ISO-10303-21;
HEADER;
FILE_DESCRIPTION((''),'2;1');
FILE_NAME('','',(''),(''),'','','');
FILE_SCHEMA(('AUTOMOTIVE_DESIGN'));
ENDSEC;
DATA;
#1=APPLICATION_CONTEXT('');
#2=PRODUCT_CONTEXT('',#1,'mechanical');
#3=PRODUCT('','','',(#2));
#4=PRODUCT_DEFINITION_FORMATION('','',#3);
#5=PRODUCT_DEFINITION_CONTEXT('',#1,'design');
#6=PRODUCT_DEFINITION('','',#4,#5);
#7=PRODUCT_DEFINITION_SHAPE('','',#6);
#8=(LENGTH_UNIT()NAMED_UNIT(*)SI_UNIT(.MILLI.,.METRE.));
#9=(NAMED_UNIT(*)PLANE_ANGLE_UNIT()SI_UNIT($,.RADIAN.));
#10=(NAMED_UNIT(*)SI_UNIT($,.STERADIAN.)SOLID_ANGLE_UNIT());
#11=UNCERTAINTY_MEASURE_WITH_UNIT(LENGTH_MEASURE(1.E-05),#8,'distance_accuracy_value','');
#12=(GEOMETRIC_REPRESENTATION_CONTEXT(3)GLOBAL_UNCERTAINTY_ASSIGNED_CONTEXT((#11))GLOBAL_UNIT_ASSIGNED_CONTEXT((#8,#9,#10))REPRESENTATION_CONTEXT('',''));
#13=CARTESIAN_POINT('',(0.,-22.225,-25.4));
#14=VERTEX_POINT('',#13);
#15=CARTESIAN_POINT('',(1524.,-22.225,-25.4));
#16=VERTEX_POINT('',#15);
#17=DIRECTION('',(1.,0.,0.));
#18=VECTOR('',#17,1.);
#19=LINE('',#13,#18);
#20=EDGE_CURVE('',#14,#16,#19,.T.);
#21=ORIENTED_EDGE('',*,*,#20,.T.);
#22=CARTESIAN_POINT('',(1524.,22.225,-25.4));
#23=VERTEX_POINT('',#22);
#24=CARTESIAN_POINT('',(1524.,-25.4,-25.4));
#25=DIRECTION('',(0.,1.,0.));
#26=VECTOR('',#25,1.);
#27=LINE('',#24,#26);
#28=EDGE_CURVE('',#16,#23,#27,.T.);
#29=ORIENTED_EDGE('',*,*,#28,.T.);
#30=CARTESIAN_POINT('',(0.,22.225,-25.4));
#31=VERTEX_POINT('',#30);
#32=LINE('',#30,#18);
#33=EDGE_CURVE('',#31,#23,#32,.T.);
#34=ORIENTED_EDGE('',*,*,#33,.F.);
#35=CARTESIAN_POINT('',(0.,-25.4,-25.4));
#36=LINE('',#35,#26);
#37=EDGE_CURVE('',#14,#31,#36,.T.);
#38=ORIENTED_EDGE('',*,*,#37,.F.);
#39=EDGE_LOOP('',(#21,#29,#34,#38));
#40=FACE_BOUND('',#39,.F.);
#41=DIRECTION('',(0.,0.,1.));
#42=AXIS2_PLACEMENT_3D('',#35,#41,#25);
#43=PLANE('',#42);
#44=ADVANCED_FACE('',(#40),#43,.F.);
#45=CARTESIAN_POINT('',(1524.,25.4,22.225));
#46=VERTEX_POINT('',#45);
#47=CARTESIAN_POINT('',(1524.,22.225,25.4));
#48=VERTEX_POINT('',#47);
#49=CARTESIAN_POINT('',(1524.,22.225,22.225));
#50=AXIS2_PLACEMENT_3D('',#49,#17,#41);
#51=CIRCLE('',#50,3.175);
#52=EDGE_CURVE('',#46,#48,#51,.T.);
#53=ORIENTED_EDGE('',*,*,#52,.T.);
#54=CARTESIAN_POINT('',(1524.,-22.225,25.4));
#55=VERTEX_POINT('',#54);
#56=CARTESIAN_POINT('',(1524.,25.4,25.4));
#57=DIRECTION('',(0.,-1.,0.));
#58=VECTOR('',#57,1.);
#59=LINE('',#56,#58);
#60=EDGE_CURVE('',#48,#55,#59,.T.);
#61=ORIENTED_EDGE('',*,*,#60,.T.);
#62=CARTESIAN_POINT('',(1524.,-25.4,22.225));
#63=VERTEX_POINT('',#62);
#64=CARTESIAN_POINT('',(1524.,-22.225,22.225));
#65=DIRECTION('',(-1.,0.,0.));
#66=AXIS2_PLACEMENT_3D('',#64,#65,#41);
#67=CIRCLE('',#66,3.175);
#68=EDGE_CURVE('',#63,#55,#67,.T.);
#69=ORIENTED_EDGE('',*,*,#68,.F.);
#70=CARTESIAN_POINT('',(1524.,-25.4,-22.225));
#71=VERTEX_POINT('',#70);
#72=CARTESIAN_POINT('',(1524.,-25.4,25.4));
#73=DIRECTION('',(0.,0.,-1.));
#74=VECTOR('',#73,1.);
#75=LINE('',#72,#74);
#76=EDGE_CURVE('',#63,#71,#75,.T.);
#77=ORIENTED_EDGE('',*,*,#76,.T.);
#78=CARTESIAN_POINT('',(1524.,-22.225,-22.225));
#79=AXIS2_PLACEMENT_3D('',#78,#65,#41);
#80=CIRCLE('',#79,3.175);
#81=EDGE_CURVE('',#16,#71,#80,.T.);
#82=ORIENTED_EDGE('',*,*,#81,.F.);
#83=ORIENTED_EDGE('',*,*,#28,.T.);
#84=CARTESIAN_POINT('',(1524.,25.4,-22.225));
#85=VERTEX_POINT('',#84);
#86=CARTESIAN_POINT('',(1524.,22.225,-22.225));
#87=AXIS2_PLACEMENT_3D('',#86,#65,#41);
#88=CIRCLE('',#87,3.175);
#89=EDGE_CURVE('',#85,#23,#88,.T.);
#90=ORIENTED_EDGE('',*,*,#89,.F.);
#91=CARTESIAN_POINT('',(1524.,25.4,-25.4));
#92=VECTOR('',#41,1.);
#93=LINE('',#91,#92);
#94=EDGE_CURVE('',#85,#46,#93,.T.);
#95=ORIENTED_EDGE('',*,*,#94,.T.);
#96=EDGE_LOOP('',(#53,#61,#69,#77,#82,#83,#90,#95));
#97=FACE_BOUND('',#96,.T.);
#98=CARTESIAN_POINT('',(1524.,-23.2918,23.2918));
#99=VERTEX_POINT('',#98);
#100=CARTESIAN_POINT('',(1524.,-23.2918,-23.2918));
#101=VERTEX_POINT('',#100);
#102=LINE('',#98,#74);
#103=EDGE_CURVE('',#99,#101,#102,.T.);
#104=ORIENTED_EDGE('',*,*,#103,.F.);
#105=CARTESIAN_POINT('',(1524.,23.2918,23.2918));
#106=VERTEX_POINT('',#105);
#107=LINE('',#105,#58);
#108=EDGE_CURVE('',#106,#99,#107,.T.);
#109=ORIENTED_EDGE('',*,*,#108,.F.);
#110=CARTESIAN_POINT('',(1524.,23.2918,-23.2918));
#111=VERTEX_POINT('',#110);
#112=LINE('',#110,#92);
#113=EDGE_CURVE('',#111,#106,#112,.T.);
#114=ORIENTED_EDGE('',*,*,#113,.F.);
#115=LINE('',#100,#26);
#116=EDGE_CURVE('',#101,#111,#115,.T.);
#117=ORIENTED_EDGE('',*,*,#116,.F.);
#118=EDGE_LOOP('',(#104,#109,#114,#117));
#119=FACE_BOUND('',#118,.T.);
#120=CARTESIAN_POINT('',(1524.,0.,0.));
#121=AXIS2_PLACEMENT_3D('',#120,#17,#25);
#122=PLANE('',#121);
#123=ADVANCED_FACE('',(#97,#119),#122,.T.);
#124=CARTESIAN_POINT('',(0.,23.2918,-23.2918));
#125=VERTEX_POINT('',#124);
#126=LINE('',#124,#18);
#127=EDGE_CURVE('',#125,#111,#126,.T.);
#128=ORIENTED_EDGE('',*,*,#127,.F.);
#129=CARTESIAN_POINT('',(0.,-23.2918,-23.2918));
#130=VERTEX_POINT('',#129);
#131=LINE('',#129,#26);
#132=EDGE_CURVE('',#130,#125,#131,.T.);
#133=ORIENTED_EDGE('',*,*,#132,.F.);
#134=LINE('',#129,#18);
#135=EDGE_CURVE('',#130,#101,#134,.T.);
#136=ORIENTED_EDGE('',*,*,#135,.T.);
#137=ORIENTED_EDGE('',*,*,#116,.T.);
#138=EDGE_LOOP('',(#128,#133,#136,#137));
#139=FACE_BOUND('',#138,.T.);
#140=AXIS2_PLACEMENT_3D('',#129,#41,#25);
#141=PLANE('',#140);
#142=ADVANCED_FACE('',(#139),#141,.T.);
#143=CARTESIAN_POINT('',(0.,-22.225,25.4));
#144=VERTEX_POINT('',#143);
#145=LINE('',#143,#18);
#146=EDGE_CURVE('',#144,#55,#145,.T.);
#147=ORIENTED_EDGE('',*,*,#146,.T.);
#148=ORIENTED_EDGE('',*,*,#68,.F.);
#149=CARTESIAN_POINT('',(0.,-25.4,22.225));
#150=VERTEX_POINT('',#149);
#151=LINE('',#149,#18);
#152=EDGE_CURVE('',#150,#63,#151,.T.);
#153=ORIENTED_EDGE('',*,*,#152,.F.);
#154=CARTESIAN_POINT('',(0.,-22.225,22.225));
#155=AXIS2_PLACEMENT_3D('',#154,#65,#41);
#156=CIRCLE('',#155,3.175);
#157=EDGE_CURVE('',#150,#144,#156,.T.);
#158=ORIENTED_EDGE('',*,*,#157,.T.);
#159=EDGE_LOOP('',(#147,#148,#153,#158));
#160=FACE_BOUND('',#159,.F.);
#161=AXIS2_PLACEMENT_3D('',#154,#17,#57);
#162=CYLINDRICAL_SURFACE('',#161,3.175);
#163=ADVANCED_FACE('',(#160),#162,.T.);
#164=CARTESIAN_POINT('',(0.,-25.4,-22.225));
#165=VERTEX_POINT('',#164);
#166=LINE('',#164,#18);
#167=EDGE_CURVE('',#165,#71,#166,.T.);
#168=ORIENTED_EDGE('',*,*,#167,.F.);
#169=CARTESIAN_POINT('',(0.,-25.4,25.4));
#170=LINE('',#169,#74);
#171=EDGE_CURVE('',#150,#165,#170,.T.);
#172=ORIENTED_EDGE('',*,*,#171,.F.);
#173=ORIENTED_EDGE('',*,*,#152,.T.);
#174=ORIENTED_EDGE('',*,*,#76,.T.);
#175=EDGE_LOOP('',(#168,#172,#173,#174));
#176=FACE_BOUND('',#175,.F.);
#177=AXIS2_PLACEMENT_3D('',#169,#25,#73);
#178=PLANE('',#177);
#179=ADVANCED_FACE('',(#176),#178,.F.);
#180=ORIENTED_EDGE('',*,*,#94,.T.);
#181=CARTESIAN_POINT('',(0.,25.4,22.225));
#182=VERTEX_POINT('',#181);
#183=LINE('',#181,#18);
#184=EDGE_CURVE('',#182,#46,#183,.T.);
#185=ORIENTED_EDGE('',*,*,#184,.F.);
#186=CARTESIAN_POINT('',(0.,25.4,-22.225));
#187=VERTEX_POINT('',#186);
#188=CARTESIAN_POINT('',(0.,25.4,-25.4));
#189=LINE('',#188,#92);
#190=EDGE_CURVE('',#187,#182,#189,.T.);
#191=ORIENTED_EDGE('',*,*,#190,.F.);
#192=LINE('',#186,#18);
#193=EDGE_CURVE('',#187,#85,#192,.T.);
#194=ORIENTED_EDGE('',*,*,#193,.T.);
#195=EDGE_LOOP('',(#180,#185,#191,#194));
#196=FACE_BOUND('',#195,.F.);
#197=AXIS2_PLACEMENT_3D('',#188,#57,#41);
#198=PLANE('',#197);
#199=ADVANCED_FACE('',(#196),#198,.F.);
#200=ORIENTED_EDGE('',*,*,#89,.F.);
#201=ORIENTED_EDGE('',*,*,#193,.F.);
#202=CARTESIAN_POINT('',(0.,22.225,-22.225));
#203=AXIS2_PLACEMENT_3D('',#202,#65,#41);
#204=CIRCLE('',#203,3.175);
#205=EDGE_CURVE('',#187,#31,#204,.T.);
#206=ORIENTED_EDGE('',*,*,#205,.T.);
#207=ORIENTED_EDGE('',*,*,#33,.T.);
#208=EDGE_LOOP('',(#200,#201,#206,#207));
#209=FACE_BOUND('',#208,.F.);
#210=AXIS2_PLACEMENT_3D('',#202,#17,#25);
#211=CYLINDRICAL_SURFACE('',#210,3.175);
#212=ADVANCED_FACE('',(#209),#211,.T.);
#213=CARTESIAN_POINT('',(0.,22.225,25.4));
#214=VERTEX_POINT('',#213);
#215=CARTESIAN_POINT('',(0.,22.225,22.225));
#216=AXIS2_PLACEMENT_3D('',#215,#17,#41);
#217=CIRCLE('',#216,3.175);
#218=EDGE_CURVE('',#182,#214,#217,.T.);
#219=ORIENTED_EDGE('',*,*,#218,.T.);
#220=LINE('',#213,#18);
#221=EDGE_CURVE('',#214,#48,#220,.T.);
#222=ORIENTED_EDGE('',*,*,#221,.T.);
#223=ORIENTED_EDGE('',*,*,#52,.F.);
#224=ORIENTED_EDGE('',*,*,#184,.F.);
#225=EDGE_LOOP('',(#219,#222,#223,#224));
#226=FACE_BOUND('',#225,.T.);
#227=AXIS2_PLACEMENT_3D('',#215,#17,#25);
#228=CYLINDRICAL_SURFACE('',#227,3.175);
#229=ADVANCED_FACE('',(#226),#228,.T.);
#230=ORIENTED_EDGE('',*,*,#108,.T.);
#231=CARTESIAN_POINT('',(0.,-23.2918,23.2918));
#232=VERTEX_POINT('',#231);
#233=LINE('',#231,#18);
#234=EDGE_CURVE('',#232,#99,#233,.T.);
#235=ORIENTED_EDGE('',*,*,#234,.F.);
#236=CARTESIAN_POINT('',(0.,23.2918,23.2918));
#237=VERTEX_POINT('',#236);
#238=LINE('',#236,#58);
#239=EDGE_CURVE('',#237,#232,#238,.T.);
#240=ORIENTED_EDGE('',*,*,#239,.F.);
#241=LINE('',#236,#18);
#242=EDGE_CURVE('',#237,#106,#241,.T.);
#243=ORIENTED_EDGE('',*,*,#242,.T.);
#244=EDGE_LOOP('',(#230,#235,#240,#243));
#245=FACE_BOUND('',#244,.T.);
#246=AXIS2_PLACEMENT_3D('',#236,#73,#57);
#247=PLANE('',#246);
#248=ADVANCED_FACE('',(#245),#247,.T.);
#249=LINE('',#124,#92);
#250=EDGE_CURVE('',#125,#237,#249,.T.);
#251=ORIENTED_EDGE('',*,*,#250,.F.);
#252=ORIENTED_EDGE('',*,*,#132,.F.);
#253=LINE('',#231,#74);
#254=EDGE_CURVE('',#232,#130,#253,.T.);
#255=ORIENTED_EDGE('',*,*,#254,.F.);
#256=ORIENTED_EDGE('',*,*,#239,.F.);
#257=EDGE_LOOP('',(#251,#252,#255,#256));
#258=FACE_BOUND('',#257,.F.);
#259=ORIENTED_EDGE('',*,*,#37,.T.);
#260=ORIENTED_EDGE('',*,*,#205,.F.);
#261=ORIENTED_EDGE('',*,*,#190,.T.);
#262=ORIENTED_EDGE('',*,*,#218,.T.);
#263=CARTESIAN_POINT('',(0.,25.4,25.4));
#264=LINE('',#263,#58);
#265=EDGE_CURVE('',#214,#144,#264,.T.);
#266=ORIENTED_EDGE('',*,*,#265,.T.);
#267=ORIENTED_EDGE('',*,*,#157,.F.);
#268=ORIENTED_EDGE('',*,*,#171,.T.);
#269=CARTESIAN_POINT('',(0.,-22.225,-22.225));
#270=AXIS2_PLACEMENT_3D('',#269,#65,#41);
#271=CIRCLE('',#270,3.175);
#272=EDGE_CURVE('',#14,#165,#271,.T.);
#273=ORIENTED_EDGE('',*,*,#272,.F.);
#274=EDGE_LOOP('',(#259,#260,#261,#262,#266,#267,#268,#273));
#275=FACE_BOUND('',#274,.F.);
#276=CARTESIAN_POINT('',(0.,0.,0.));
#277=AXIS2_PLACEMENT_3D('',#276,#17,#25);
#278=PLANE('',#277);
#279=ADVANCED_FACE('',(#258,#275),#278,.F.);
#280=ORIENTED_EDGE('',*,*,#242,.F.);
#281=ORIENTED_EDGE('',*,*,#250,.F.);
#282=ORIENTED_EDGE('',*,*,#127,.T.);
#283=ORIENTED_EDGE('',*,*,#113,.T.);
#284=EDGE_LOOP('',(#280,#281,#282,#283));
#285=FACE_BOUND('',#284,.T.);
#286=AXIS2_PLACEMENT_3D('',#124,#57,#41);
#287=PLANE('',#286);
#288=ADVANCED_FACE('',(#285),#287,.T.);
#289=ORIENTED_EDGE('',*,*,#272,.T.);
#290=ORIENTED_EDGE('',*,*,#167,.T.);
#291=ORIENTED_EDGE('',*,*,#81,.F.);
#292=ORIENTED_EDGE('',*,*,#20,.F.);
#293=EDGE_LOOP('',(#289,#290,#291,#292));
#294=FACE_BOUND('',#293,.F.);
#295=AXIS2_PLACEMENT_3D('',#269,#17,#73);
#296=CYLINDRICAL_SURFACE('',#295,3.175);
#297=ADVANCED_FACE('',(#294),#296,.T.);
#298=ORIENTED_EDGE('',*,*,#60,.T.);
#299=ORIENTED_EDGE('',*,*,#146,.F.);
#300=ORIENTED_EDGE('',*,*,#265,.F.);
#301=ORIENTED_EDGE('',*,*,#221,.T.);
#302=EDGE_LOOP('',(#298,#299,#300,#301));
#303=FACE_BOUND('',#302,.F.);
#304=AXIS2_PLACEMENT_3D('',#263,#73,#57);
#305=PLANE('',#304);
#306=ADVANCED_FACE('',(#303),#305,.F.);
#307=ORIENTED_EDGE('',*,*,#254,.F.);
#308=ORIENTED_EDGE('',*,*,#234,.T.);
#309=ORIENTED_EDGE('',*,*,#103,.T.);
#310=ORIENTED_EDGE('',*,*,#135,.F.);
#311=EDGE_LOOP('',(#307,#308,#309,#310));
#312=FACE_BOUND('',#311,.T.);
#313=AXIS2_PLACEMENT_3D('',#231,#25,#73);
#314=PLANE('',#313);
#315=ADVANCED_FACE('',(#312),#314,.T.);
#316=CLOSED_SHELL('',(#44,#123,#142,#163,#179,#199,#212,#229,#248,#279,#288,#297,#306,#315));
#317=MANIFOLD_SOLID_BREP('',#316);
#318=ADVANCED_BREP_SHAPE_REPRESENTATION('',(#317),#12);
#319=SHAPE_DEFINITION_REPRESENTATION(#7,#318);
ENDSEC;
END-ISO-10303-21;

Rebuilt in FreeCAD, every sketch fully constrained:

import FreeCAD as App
import Part
import Sketcher
from FreeCAD import Vector
Q = App.Units.Quantity


def edges_at(feature, points):
    """Names of the edges that pass closest to the given points."""
    edges = feature.Shape.Edges
    near = lambda p: min(range(len(edges)), key=lambda i: edges[i].distToShape(Part.Vertex(*p))[0])
    return sorted({f"Edge{near(p) + 1}" for p in points})


def add_polygon(sketch, points):
    """Adds a closed chain of lines whose ends are joined by coincident constraints."""
    first, n = sketch.GeometryCount, len(points)
    for a, b in zip(points, points[1:] + points[:1]):
        sketch.addGeometry(Part.LineSegment(App.Vector(*a, 0), App.Vector(*b, 0)), False)
    for i in range(n):
        sketch.addConstraint(Sketcher.Constraint("Coincident", first + i, 2, first + (i + 1) % n, 1))

doc = App.newDocument("Part")
body = doc.addObject("PartDesign::Body", "Body")

# Sketch on YZ plane
sketch1 = body.newObject("Sketcher::SketchObject", "Sketch")
sketch1.AttachmentSupport = (doc.getObject("YZ_Plane"), [""])
sketch1.MapMode = "FlatFace"
add_polygon(sketch1, [(25, -25), (25, 25), (-25, 25), (-25, -25)])  # lines 0-3
add_polygon(sketch1, [(-23, 23), (23, 23), (23, -23), (-23, -23)])  # lines 4-7
sketch1.addConstraint(Sketcher.Constraint("Vertical", 0))
sketch1.addConstraint(Sketcher.Constraint("Horizontal", 1))
sketch1.addConstraint(Sketcher.Constraint("Vertical", 2))
sketch1.addConstraint(Sketcher.Constraint("Horizontal", 3))
sketch1.addConstraint(Sketcher.Constraint("Horizontal", 4))
sketch1.addConstraint(Sketcher.Constraint("Vertical", 5))
sketch1.addConstraint(Sketcher.Constraint("Horizontal", 6))
sketch1.addConstraint(Sketcher.Constraint("Vertical", 7))
sketch1.addConstraint(Sketcher.Constraint("Symmetric", 0, 2, 2, 2, -1, 1))
sketch1.addConstraint(Sketcher.Constraint("Symmetric", 4, 2, 6, 2, -1, 1))
sketch1.addConstraint(Sketcher.Constraint("Equal", 3, 0))
sketch1.addConstraint(Sketcher.Constraint("Equal", 6, 5))
sketch1.addConstraint(Sketcher.Constraint("DistanceX", 1, 2, 1, 1, Q("2 in")))
sketch1.addConstraint(Sketcher.Constraint("DistanceX", 4, 2, 0, 2, Q("0.083 in")))
pad1 = body.newObject("PartDesign::Pad", "Pad")
pad1.Profile = sketch1
pad1.Length = Q("60 in")
doc.recompute()

fillet = body.newObject("PartDesign::Fillet", "Fillet")
fillet.Base = (pad1, edges_at(pad1, [
    (762, 25.4, 25.4),
    (762, -25.4, 25.4),
    (762, 25.4, -25.4),
    (762, -25.4, -25.4),
]))
fillet.Radius = Q("0.125 in")

doc.recompute()
